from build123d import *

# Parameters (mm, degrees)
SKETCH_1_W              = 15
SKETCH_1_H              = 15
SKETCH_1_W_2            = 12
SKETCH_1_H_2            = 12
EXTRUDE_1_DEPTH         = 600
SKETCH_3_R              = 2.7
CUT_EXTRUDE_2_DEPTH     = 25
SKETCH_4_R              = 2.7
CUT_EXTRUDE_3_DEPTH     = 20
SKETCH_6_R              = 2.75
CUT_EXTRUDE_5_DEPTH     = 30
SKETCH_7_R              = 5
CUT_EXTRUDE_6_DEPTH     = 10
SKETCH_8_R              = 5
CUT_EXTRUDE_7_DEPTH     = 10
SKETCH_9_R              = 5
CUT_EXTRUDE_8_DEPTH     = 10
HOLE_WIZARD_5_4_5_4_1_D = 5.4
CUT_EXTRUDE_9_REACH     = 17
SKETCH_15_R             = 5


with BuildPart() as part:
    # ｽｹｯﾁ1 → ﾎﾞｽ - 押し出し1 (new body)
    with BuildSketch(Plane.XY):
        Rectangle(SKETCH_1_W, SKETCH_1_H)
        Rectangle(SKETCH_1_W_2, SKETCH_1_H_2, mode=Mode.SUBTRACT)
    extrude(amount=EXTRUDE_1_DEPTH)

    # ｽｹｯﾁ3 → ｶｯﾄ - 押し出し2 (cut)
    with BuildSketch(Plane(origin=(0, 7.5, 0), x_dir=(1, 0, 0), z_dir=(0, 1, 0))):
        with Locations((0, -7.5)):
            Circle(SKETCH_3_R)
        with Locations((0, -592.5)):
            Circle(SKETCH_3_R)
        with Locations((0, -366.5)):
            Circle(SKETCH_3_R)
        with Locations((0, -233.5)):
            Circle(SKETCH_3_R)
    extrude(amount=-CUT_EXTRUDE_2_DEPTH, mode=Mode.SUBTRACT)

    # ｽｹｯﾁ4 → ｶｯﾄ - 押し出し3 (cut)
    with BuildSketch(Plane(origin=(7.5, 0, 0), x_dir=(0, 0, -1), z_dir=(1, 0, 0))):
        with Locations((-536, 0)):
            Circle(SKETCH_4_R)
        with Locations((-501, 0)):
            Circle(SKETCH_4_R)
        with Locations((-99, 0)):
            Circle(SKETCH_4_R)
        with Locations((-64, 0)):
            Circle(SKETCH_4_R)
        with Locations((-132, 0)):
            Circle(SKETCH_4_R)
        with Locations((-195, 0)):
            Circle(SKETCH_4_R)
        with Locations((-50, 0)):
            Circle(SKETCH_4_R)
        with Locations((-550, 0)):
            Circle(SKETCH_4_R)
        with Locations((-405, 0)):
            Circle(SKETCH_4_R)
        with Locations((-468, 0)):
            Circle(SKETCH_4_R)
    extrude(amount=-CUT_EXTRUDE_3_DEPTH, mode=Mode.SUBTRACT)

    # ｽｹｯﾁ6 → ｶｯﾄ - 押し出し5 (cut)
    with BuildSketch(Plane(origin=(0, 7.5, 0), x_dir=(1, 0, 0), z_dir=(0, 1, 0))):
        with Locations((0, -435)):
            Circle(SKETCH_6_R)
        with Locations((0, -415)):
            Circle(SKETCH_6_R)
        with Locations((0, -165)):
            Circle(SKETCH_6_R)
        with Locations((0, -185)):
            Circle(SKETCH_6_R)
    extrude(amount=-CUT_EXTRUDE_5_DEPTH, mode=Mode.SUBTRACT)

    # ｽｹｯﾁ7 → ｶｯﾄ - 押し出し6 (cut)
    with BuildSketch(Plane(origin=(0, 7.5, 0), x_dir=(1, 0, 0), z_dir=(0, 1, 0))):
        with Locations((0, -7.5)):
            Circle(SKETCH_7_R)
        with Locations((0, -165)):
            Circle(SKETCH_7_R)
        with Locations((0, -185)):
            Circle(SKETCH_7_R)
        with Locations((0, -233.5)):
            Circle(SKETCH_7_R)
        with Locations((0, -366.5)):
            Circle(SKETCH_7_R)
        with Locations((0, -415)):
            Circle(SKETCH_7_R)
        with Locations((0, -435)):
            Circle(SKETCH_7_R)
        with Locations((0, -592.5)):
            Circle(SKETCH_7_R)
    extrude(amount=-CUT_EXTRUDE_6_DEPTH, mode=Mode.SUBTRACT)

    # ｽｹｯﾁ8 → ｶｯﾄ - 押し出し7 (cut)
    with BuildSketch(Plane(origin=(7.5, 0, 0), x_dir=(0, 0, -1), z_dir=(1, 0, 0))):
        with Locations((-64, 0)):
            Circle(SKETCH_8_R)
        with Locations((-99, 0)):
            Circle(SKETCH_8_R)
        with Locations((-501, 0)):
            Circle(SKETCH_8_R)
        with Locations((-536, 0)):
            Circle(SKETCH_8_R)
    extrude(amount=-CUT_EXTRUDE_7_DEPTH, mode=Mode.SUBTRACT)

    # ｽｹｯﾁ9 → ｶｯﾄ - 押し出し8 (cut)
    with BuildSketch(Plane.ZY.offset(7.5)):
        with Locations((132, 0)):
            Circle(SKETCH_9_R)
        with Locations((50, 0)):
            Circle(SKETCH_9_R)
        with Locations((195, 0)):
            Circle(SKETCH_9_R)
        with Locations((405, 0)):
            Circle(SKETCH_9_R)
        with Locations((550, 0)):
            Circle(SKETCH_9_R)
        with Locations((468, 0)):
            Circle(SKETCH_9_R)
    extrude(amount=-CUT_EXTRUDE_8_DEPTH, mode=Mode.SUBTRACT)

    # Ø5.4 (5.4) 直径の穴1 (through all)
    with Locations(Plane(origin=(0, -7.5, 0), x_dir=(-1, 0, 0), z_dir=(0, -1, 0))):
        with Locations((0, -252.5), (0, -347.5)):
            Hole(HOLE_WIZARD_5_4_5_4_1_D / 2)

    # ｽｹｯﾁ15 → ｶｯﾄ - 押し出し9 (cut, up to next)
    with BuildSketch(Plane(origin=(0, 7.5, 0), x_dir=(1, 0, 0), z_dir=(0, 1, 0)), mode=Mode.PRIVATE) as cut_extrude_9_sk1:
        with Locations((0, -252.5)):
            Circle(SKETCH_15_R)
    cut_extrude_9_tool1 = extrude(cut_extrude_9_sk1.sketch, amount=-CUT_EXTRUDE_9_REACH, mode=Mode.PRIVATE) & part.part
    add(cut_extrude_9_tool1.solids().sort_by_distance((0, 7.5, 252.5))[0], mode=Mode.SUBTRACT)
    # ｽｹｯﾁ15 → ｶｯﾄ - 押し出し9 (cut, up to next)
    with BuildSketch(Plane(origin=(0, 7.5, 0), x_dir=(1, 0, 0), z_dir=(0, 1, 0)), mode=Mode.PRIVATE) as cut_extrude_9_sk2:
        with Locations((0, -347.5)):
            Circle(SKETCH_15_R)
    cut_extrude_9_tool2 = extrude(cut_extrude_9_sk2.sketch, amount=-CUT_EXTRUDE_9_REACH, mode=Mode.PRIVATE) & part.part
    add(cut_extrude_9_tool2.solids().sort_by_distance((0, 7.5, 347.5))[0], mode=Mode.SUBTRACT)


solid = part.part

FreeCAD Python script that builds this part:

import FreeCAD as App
import Part
import Sketcher
from FreeCAD import Vector
Q = App.Units.Quantity


def add_polygon(sketch, points):
    """Adds a closed chain of lines whose ends are joined by coincident constraints."""
    first, n = sketch.GeometryCount, len(points)
    for a, b in zip(points, points[1:] + points[:1]):
        sketch.addGeometry(Part.LineSegment(App.Vector(*a, 0), App.Vector(*b, 0)), False)
    for i in range(n):
        sketch.addConstraint(Sketcher.Constraint("Coincident", first + i, 2, first + (i + 1) % n, 1))

doc = App.newDocument("Part")
body = doc.addObject("PartDesign::Body", "Body")

# Sketch on XY plane
sketch1 = body.newObject("Sketcher::SketchObject", "Sketch")
sketch1.AttachmentSupport = (doc.getObject("XY_Plane"), [""])
sketch1.MapMode = "FlatFace"
add_polygon(sketch1, [(-8, 8), (-8, -8), (8, -8), (8, 8)])  # lines 0-3
add_polygon(sketch1, [(6, -6), (-6, -6), (-6, 6), (6, 6)])  # lines 4-7
sketch1.addConstraint(Sketcher.Constraint("Vertical", 0))
sketch1.addConstraint(Sketcher.Constraint("Horizontal", 1))
sketch1.addConstraint(Sketcher.Constraint("Vertical", 2))
sketch1.addConstraint(Sketcher.Constraint("Horizontal", 3))
sketch1.addConstraint(Sketcher.Constraint("Horizontal", 4))
sketch1.addConstraint(Sketcher.Constraint("Vertical", 5))
sketch1.addConstraint(Sketcher.Constraint("Horizontal", 6))
sketch1.addConstraint(Sketcher.Constraint("Vertical", 7))
sketch1.addConstraint(Sketcher.Constraint("Symmetric", 0, 2, 2, 2, -1, 1))
sketch1.addConstraint(Sketcher.Constraint("Symmetric", 4, 2, 6, 2, -1, 1))
sketch1.addConstraint(Sketcher.Constraint("Equal", 3, 0))
sketch1.addConstraint(Sketcher.Constraint("Equal", 6, 5))
sketch1.addConstraint(Sketcher.Constraint("DistanceX", 1, 1, 1, 2, Q("15 mm")))
sketch1.addConstraint(Sketcher.Constraint("DistanceX", 4, 2, 4, 1, Q("12 mm")))
pad1 = body.newObject("PartDesign::Pad", "Pad")
pad1.Profile = sketch1
pad1.Length = 600

# Sketch on XZ plane
sketch2 = body.newObject("Sketcher::SketchObject", "Sketch001")
sketch2.AttachmentSupport = (doc.getObject("XZ_Plane"), [""])
sketch2.MapMode = "FlatFace"
sketch2.AttachmentOffset = App.Placement(Vector(0, 0, -7.5), App.Rotation())
sketch2.addGeometry(Part.Circle(Vector(0, 7.5, 0), Vector(0, 0, 1), 2.7), False)
sketch2.addGeometry(Part.Circle(Vector(0, 592.5, 0), Vector(0, 0, 1), 2.7), False)
sketch2.addGeometry(Part.Circle(Vector(0, 366.5, 0), Vector(0, 0, 1), 2.7), False)
sketch2.addGeometry(Part.Circle(Vector(0, 233.5, 0), Vector(0, 0, 1), 2.7), False)
sketch2.addConstraint(Sketcher.Constraint("Equal", 0, 1))
sketch2.addConstraint(Sketcher.Constraint("Equal", 1, 2))
sketch2.addConstraint(Sketcher.Constraint("Equal", 2, 3))
sketch2.addConstraint(Sketcher.Constraint("PointOnObject", 0, 3, -2))
sketch2.addConstraint(Sketcher.Constraint("PointOnObject", 1, 3, -2))
sketch2.addConstraint(Sketcher.Constraint("PointOnObject", 2, 3, -2))
sketch2.addConstraint(Sketcher.Constraint("PointOnObject", 3, 3, -2))
sketch2.addConstraint(Sketcher.Constraint("Diameter", 0, Q("5.4 mm")))
sketch2.addConstraint(Sketcher.Constraint("DistanceY", 0, 3, 1, 3, Q("585 mm")))
sketch2.addConstraint(Sketcher.Constraint("DistanceY", 2, 3, 1, 3, Q("226 mm")))
sketch2.addConstraint(Sketcher.Constraint("DistanceY", 3, 3, 2, 3, Q("133 mm")))
sketch2.addConstraint(Sketcher.Constraint("DistanceY", -1, 1, 0, 3, Q("7.5 mm")))
pocket1 = body.newObject("PartDesign::Pocket", "Pocket")
pocket1.Profile = sketch2
pocket1.Length = 25
pocket1.Reversed = True

# Sketch on YZ plane
sketch3 = body.newObject("Sketcher::SketchObject", "Sketch002")
sketch3.AttachmentSupport = (doc.getObject("YZ_Plane"), [""])
sketch3.MapMode = "FlatFace"
sketch3.AttachmentOffset = App.Placement(Vector(0, 0, 7.5), App.Rotation())
sketch3.addGeometry(Part.Circle(Vector(0, 536, 0), Vector(0, 0, 1), 2.7), False)
sketch3.addGeometry(Part.Circle(Vector(0, 501, 0), Vector(0, 0, 1), 2.7), False)
sketch3.addGeometry(Part.Circle(Vector(0, 99, 0), Vector(0, 0, 1), 2.7), False)
sketch3.addGeometry(Part.Circle(Vector(0, 64, 0), Vector(0, 0, 1), 2.7), False)
sketch3.addGeometry(Part.Circle(Vector(0, 132, 0), Vector(0, 0, 1), 2.7), False)
sketch3.addGeometry(Part.Circle(Vector(0, 195, 0), Vector(0, 0, 1), 2.7), False)
sketch3.addGeometry(Part.Circle(Vector(0, 50, 0), Vector(0, 0, 1), 2.7), False)
sketch3.addGeometry(Part.Circle(Vector(0, 550, 0), Vector(0, 0, 1), 2.7), False)
sketch3.addGeometry(Part.Circle(Vector(0, 405, 0), Vector(0, 0, 1), 2.7), False)
sketch3.addGeometry(Part.Circle(Vector(0, 468, 0), Vector(0, 0, 1), 2.7), False)
sketch3.addConstraint(Sketcher.Constraint("Equal", 0, 1))
sketch3.addConstraint(Sketcher.Constraint("Equal", 1, 2))
sketch3.addConstraint(Sketcher.Constraint("Equal", 2, 3))
sketch3.addConstraint(Sketcher.Constraint("Equal", 3, 4))
sketch3.addConstraint(Sketcher.Constraint("Equal", 4, 5))
sketch3.addConstraint(Sketcher.Constraint("Equal", 5, 6))
sketch3.addConstraint(Sketcher.Constraint("Equal", 6, 7))
sketch3.addConstraint(Sketcher.Constraint("Equal", 7, 8))
sketch3.addConstraint(Sketcher.Constraint("Equal", 8, 9))
sketch3.addConstraint(Sketcher.Constraint("PointOnObject", 0, 3, -2))
sketch3.addConstraint(Sketcher.Constraint("PointOnObject", 1, 3, -2))
sketch3.addConstraint(Sketcher.Constraint("PointOnObject", 2, 3, -2))
sketch3.addConstraint(Sketcher.Constraint("PointOnObject", 3, 3, -2))
sketch3.addConstraint(Sketcher.Constraint("PointOnObject", 4, 3, -2))
sketch3.addConstraint(Sketcher.Constraint("PointOnObject", 5, 3, -2))
sketch3.addConstraint(Sketcher.Constraint("PointOnObject", 6, 3, -2))
sketch3.addConstraint(Sketcher.Constraint("PointOnObject", 7, 3, -2))
sketch3.addConstraint(Sketcher.Constraint("PointOnObject", 8, 3, -2))
sketch3.addConstraint(Sketcher.Constraint("PointOnObject", 9, 3, -2))
sketch3.addConstraint(Sketcher.Constraint("Diameter", 0, Q("5.4 mm")))
sketch3.addConstraint(Sketcher.Constraint("DistanceY", -1, 1, 0, 3, Q("536 mm")))
sketch3.addConstraint(Sketcher.Constraint("DistanceY", -1, 1, 1, 3, Q("501 mm")))
sketch3.addConstraint(Sketcher.Constraint("DistanceY", -1, 1, 2, 3, Q("99 mm")))
sketch3.addConstraint(Sketcher.Constraint("DistanceY", -1, 1, 3, 3, Q("64 mm")))
sketch3.addConstraint(Sketcher.Constraint("DistanceY", -1, 1, 4, 3, Q("132 mm")))
sketch3.addConstraint(Sketcher.Constraint("DistanceY", -1, 1, 5, 3, Q("195 mm")))
sketch3.addConstraint(Sketcher.Constraint("DistanceY", -1, 1, 6, 3, Q("50 mm")))
sketch3.addConstraint(Sketcher.Constraint("DistanceY", -1, 1, 7, 3, Q("550 mm")))
sketch3.addConstraint(Sketcher.Constraint("DistanceY", -1, 1, 8, 3, Q("405 mm")))
sketch3.addConstraint(Sketcher.Constraint("DistanceY", -1, 1, 9, 3, Q("468 mm")))
pocket2 = body.newObject("PartDesign::Pocket", "Pocket001")
pocket2.Profile = sketch3
pocket2.Length = 20

# Sketch on XZ plane
sketch4 = body.newObject("Sketcher::SketchObject", "Sketch003")
sketch4.AttachmentSupport = (doc.getObject("XZ_Plane"), [""])
sketch4.MapMode = "FlatFace"
sketch4.AttachmentOffset = App.Placement(Vector(0, 0, -7.5), App.Rotation())
sketch4.addGeometry(Part.Circle(Vector(0, 435, 0), Vector(0, 0, 1), 2.8), False)
sketch4.addGeometry(Part.Circle(Vector(0, 415, 0), Vector(0, 0, 1), 2.8), False)
sketch4.addGeometry(Part.Circle(Vector(0, 165, 0), Vector(0, 0, 1), 2.8), False)
sketch4.addGeometry(Part.Circle(Vector(0, 185, 0), Vector(0, 0, 1), 2.8), False)
sketch4.addConstraint(Sketcher.Constraint("Equal", 0, 1))
sketch4.addConstraint(Sketcher.Constraint("Equal", 1, 2))
sketch4.addConstraint(Sketcher.Constraint("Equal", 2, 3))
sketch4.addConstraint(Sketcher.Constraint("PointOnObject", 0, 3, -2))
sketch4.addConstraint(Sketcher.Constraint("PointOnObject", 1, 3, -2))
sketch4.addConstraint(Sketcher.Constraint("PointOnObject", 2, 3, -2))
sketch4.addConstraint(Sketcher.Constraint("PointOnObject", 3, 3, -2))
sketch4.addConstraint(Sketcher.Constraint("Diameter", 0, Q("5.5 mm")))
sketch4.addConstraint(Sketcher.Constraint("DistanceY", -1, 1, 0, 3, Q("435 mm")))
sketch4.addConstraint(Sketcher.Constraint("DistanceY", -1, 1, 1, 3, Q("415 mm")))
sketch4.addConstraint(Sketcher.Constraint("DistanceY", -1, 1, 2, 3, Q("165 mm")))
sketch4.addConstraint(Sketcher.Constraint("DistanceY", -1, 1, 3, 3, Q("185 mm")))
pocket3 = body.newObject("PartDesign::Pocket", "Pocket002")
pocket3.Profile = sketch4
pocket3.Length = 30
pocket3.Reversed = True

# Sketch on XZ plane
sketch5 = body.newObject("Sketcher::SketchObject", "Sketch004")
sketch5.AttachmentSupport = (doc.getObject("XZ_Plane"), [""])
sketch5.MapMode = "FlatFace"
sketch5.AttachmentOffset = App.Placement(Vector(0, 0, -7.5), App.Rotation())
sketch5.addGeometry(Part.Circle(Vector(0, 8, 0), Vector(0, 0, 1), 5), False)
sketch5.addGeometry(Part.Circle(Vector(0, 165, 0), Vector(0, 0, 1), 5), False)
sketch5.addGeometry(Part.Circle(Vector(0, 185, 0), Vector(0, 0, 1), 5), False)
sketch5.addGeometry(Part.Circle(Vector(0, 234, 0), Vector(0, 0, 1), 5), False)
sketch5.addGeometry(Part.Circle(Vector(0, 366, 0), Vector(0, 0, 1), 5), False)
sketch5.addGeometry(Part.Circle(Vector(0, 415, 0), Vector(0, 0, 1), 5), False)
sketch5.addGeometry(Part.Circle(Vector(0, 435, 0), Vector(0, 0, 1), 5), False)
sketch5.addGeometry(Part.Circle(Vector(0, 592, 0), Vector(0, 0, 1), 5), False)
sketch5.addConstraint(Sketcher.Constraint("Equal", 0, 1))
sketch5.addConstraint(Sketcher.Constraint("Equal", 1, 2))
sketch5.addConstraint(Sketcher.Constraint("Equal", 2, 3))
sketch5.addConstraint(Sketcher.Constraint("Equal", 3, 4))
sketch5.addConstraint(Sketcher.Constraint("Equal", 4, 5))
sketch5.addConstraint(Sketcher.Constraint("Equal", 5, 6))
sketch5.addConstraint(Sketcher.Constraint("Equal", 6, 7))
sketch5.addConstraint(Sketcher.Constraint("PointOnObject", 0, 3, -2))
sketch5.addConstraint(Sketcher.Constraint("PointOnObject", 1, 3, -2))
sketch5.addConstraint(Sketcher.Constraint("PointOnObject", 2, 3, -2))
sketch5.addConstraint(Sketcher.Constraint("PointOnObject", 3, 3, -2))
sketch5.addConstraint(Sketcher.Constraint("PointOnObject", 4, 3, -2))
sketch5.addConstraint(Sketcher.Constraint("PointOnObject", 5, 3, -2))
sketch5.addConstraint(Sketcher.Constraint("PointOnObject", 6, 3, -2))
sketch5.addConstraint(Sketcher.Constraint("PointOnObject", 7, 3, -2))
sketch5.addConstraint(Sketcher.Constraint("Diameter", 0, Q("10 mm")))
sketch5.addConstraint(Sketcher.Constraint("DistanceY", -1, 1, 1, 3, Q("165 mm")))
sketch5.addConstraint(Sketcher.Constraint("DistanceY", -1, 1, 2, 3, Q("185 mm")))
sketch5.addConstraint(Sketcher.Constraint("DistanceY", -1, 1, 5, 3, Q("415 mm")))
sketch5.addConstraint(Sketcher.Constraint("DistanceY", -1, 1, 6, 3, Q("435 mm")))
sketch5.addConstraint(Sketcher.Constraint("DistanceY", 0, 3, 3, 3, Q("226 mm")))
sketch5.addConstraint(Sketcher.Constraint("DistanceY", 3, 3, 4, 3, Q("133 mm")))
sketch5.addConstraint(Sketcher.Constraint("DistanceY", 4, 3, 7, 3, Q("226 mm")))
sketch5.addConstraint(Sketcher.Constraint("DistanceY", -1, 1, 0, 3, Q("7.5 mm")))
pocket4 = body.newObject("PartDesign::Pocket", "Pocket003")
pocket4.Profile = sketch5
pocket4.Length = 10
pocket4.Reversed = True

# Sketch on YZ plane
sketch6 = body.newObject("Sketcher::SketchObject", "Sketch005")
sketch6.AttachmentSupport = (doc.getObject("YZ_Plane"), [""])
sketch6.MapMode = "FlatFace"
sketch6.AttachmentOffset = App.Placement(Vector(0, 0, 7.5), App.Rotation())
sketch6.addGeometry(Part.Circle(Vector(0, 64, 0), Vector(0, 0, 1), 5), False)
sketch6.addGeometry(Part.Circle(Vector(0, 99, 0), Vector(0, 0, 1), 5), False)
sketch6.addGeometry(Part.Circle(Vector(0, 501, 0), Vector(0, 0, 1), 5), False)
sketch6.addGeometry(Part.Circle(Vector(0, 536, 0), Vector(0, 0, 1), 5), False)
sketch6.addConstraint(Sketcher.Constraint("Equal", 0, 1))
sketch6.addConstraint(Sketcher.Constraint("Equal", 1, 2))
sketch6.addConstraint(Sketcher.Constraint("Equal", 2, 3))
sketch6.addConstraint(Sketcher.Constraint("PointOnObject", 0, 3, -2))
sketch6.addConstraint(Sketcher.Constraint("PointOnObject", 1, 3, -2))
sketch6.addConstraint(Sketcher.Constraint("PointOnObject", 2, 3, -2))
sketch6.addConstraint(Sketcher.Constraint("PointOnObject", 3, 3, -2))
sketch6.addConstraint(Sketcher.Constraint("Diameter", 0, Q("10 mm")))
sketch6.addConstraint(Sketcher.Constraint("DistanceY", -1, 1, 0, 3, Q("64 mm")))
sketch6.addConstraint(Sketcher.Constraint("DistanceY", -1, 1, 1, 3, Q("99 mm")))
sketch6.addConstraint(Sketcher.Constraint("DistanceY", -1, 1, 2, 3, Q("501 mm")))
sketch6.addConstraint(Sketcher.Constraint("DistanceY", -1, 1, 3, 3, Q("536 mm")))
pocket5 = body.newObject("PartDesign::Pocket", "Pocket004")
pocket5.Profile = sketch6
pocket5.Length = 10

# Sketch on YZ plane
sketch7 = body.newObject("Sketcher::SketchObject", "Sketch006")
sketch7.AttachmentSupport = (doc.getObject("YZ_Plane"), [""])
sketch7.MapMode = "FlatFace"
sketch7.AttachmentOffset = App.Placement(Vector(0, 0, -7.5), App.Rotation())
sketch7.addGeometry(Part.Circle(Vector(0, 132, 0), Vector(0, 0, 1), 5), False)
sketch7.addGeometry(Part.Circle(Vector(0, 50, 0), Vector(0, 0, 1), 5), False)
sketch7.addGeometry(Part.Circle(Vector(0, 195, 0), Vector(0, 0, 1), 5), False)
sketch7.addGeometry(Part.Circle(Vector(0, 405, 0), Vector(0, 0, 1), 5), False)
sketch7.addGeometry(Part.Circle(Vector(0, 550, 0), Vector(0, 0, 1), 5), False)
sketch7.addGeometry(Part.Circle(Vector(0, 468, 0), Vector(0, 0, 1), 5), False)
sketch7.addConstraint(Sketcher.Constraint("Equal", 0, 1))
sketch7.addConstraint(Sketcher.Constraint("Equal", 1, 2))
sketch7.addConstraint(Sketcher.Constraint("Equal", 2, 3))
sketch7.addConstraint(Sketcher.Constraint("Equal", 3, 4))
sketch7.addConstraint(Sketcher.Constraint("Equal", 4, 5))
sketch7.addConstraint(Sketcher.Constraint("PointOnObject", 0, 3, -2))
sketch7.addConstraint(Sketcher.Constraint("PointOnObject", 1, 3, -2))
sketch7.addConstraint(Sketcher.Constraint("PointOnObject", 2, 3, -2))
sketch7.addConstraint(Sketcher.Constraint("PointOnObject", 3, 3, -2))
sketch7.addConstraint(Sketcher.Constraint("PointOnObject", 4, 3, -2))
sketch7.addConstraint(Sketcher.Constraint("PointOnObject", 5, 3, -2))
sketch7.addConstraint(Sketcher.Constraint("Diameter", 0, Q("10 mm")))
sketch7.addConstraint(Sketcher.Constraint("DistanceY", -1, 1, 0, 3, Q("132 mm")))
sketch7.addConstraint(Sketcher.Constraint("DistanceY", -1, 1, 1, 3, Q("50 mm")))
sketch7.addConstraint(Sketcher.Constraint("DistanceY", -1, 1, 2, 3, Q("195 mm")))
sketch7.addConstraint(Sketcher.Constraint("DistanceY", -1, 1, 3, 3, Q("405 mm")))
sketch7.addConstraint(Sketcher.Constraint("DistanceY", -1, 1, 4, 3, Q("550 mm")))
sketch7.addConstraint(Sketcher.Constraint("DistanceY", -1, 1, 5, 3, Q("468 mm")))
pocket6 = body.newObject("PartDesign::Pocket", "Pocket005")
pocket6.Profile = sketch7
pocket6.Length = 10
pocket6.Reversed = True

# Sketch on XZ plane
sketch8 = body.newObject("Sketcher::SketchObject", "Sketch007")
sketch8.AttachmentSupport = (doc.getObject("XZ_Plane"), [""])
sketch8.MapMode = "FlatFace"
sketch8.AttachmentOffset = App.Placement(Vector(0, 0, 7.5), App.Rotation())
sketch8.addGeometry(Part.Circle(Vector(0, 252.5, 0), Vector(0, 0, 1), 2.7), False)
sketch8.addGeometry(Part.Circle(Vector(0, 347.5, 0), Vector(0, 0, 1), 2.7), False)
sketch8.addConstraint(Sketcher.Constraint("Equal", 0, 1))
sketch8.addConstraint(Sketcher.Constraint("PointOnObject", 0, 3, -2))
sketch8.addConstraint(Sketcher.Constraint("PointOnObject", 1, 3, -2))
sketch8.addConstraint(Sketcher.Constraint("Diameter", 0, Q("5.4 mm")))
sketch8.addConstraint(Sketcher.Constraint("DistanceY", 0, 3, 1, 3, Q("95 mm")))
sketch8.addConstraint(Sketcher.Constraint("DistanceY", -1, 1, 0, 3, Q("252.5 mm")))
doc.recompute()
hole = body.newObject("PartDesign::Hole", "Hole")
hole.Profile = sketch8
hole.ThreadType = "None"
hole.Diameter = 5.4
hole.DepthType = "ThroughAll"

# Sketch on XZ plane
sketch9 = body.newObject("Sketcher::SketchObject", "Sketch008")
sketch9.AttachmentSupport = (doc.getObject("XZ_Plane"), [""])
sketch9.MapMode = "FlatFace"
sketch9.AttachmentOffset = App.Placement(Vector(0, 0, -7.5), App.Rotation())
sketch9.addGeometry(Part.Circle(Vector(0, 252, 0), Vector(0, 0, 1), 5), False)
sketch9.addConstraint(Sketcher.Constraint("PointOnObject", 0, 3, -2))
sketch9.addConstraint(Sketcher.Constraint("Diameter", 0, Q("10 mm")))
sketch9.addConstraint(Sketcher.Constraint("DistanceY", -1, 1, 0, 3, Q("252.5 mm")))
pocket7 = body.newObject("PartDesign::Pocket", "Pocket006")
pocket7.Profile = sketch9
pocket7.Length = 1.5
pocket7.Reversed = True

# Sketch on XZ plane
sketch10 = body.newObject("Sketcher::SketchObject", "Sketch009")
sketch10.AttachmentSupport = (doc.getObject("XZ_Plane"), [""])
sketch10.MapMode = "FlatFace"
sketch10.AttachmentOffset = App.Placement(Vector(0, 0, -7.5), App.Rotation())
sketch10.addGeometry(Part.Circle(Vector(0, 348, 0), Vector(0, 0, 1), 5), False)
sketch10.addConstraint(Sketcher.Constraint("PointOnObject", 0, 3, -2))
sketch10.addConstraint(Sketcher.Constraint("Diameter", 0, Q("10 mm")))
sketch10.addConstraint(Sketcher.Constraint("DistanceY", -1, 1, 0, 3, Q("347.5 mm")))
pocket8 = body.newObject("PartDesign::Pocket", "Pocket007")
pocket8.Profile = sketch10
pocket8.Length = 1.5
pocket8.Reversed = True

doc.recompute()
